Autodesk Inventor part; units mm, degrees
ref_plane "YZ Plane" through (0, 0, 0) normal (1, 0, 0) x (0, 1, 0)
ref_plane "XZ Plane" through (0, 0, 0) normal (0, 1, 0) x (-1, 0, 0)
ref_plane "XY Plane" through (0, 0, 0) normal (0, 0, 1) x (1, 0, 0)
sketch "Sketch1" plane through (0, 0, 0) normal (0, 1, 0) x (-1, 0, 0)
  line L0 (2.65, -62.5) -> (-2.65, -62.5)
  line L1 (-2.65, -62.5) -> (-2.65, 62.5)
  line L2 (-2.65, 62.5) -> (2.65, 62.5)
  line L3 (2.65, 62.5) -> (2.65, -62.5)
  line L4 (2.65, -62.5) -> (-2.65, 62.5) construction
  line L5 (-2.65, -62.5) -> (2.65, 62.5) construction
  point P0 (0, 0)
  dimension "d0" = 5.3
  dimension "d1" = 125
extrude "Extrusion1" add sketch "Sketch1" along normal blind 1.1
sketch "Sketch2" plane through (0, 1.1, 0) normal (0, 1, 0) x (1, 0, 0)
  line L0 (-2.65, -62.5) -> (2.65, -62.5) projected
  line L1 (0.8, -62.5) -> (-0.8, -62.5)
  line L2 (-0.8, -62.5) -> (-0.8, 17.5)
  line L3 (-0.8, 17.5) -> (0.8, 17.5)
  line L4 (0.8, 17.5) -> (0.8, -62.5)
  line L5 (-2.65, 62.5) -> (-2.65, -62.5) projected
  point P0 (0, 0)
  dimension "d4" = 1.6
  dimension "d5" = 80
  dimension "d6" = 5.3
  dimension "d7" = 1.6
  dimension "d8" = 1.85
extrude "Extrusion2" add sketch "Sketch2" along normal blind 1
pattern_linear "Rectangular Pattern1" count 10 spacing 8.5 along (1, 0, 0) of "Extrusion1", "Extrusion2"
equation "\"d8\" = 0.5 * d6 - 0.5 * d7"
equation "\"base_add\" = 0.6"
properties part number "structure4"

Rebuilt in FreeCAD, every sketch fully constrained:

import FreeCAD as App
import Part
import Sketcher
from FreeCAD import Vector
Q = App.Units.Quantity


def add_polygon(sketch, points):
    """Adds a closed chain of lines whose ends are joined by coincident constraints."""
    first, n = sketch.GeometryCount, len(points)
    for a, b in zip(points, points[1:] + points[:1]):
        sketch.addGeometry(Part.LineSegment(App.Vector(*a, 0), App.Vector(*b, 0)), False)
    for i in range(n):
        sketch.addConstraint(Sketcher.Constraint("Coincident", first + i, 2, first + (i + 1) % n, 1))

doc = App.newDocument("Part")
body = doc.addObject("PartDesign::Body", "Body")
body.AllowCompound = True

# Sketch on XZ plane
sketch1 = body.newObject("Sketcher::SketchObject", "Sketch")
sketch1.AttachmentSupport = (doc.getObject("XZ_Plane"), [""])
sketch1.MapMode = "FlatFace"
add_polygon(sketch1, [(3, -62), (-3, -62), (-3, 62), (3, 62)])  # lines 0-3
sketch1.addConstraint(Sketcher.Constraint("Horizontal", 0))
sketch1.addConstraint(Sketcher.Constraint("Vertical", 1))
sketch1.addConstraint(Sketcher.Constraint("Horizontal", 2))
sketch1.addConstraint(Sketcher.Constraint("Vertical", 3))
sketch1.addConstraint(Sketcher.Constraint("Symmetric", 0, 2, 2, 2, -1, 1))
sketch1.addConstraint(Sketcher.Constraint("DistanceY", 1, 1, 1, 2, Q("125 mm")))
sketch1.addConstraint(Sketcher.Constraint("DistanceX", 0, 2, 0, 1, Q("5.3 mm")))
pad1 = body.newObject("PartDesign::Pad", "Pad")
pad1.Profile = sketch1
pad1.Length = 1.1
pad1.Reversed = True

# Sketch on XZ plane
sketch2 = body.newObject("Sketcher::SketchObject", "Sketch001")
sketch2.AttachmentSupport = (doc.getObject("XZ_Plane"), [""])
sketch2.MapMode = "FlatFace"
sketch2.AttachmentOffset = App.Placement(Vector(0, 0, -1.1), App.Rotation())
add_polygon(sketch2, [(-0.8, -17.5), (-0.8, 62.5), (0.8, 62.5), (0.8, -17.5)])  # lines 0-3
sketch2.addConstraint(Sketcher.Constraint("Vertical", 0))
sketch2.addConstraint(Sketcher.Constraint("Horizontal", 1))
sketch2.addConstraint(Sketcher.Constraint("Vertical", 2))
sketch2.addConstraint(Sketcher.Constraint("Horizontal", 3))
sketch2.addConstraint(Sketcher.Constraint("DistanceY", 0, 1, 0, 2, Q("80 mm")))
sketch2.addConstraint(Sketcher.Constraint("DistanceX", 1, 1, 1, 2, Q("1.6 mm")))
sketch2.addConstraint(Sketcher.Constraint("DistanceX", 0, 2, -1, 1, Q("0.8 mm")))
sketch2.addConstraint(Sketcher.Constraint("DistanceY", -1, 1, 0, 2, Q("62.5 mm")))
pad2 = body.newObject("PartDesign::Pad", "Pad001")
pad2.Profile = sketch2
pad2.Length = 1
pad2.Reversed = True
doc.recompute()

linearpattern = body.newObject("PartDesign::LinearPattern", "LinearPattern")
linearpattern.Originals = [pad1, pad2]
linearpattern.Direction = (doc.getObject("X_Axis"), [""])
linearpattern.Mode = "offset"
linearpattern.Offset = 8.5
linearpattern.Occurrences = 10
body.Tip = linearpattern

doc.recompute()
